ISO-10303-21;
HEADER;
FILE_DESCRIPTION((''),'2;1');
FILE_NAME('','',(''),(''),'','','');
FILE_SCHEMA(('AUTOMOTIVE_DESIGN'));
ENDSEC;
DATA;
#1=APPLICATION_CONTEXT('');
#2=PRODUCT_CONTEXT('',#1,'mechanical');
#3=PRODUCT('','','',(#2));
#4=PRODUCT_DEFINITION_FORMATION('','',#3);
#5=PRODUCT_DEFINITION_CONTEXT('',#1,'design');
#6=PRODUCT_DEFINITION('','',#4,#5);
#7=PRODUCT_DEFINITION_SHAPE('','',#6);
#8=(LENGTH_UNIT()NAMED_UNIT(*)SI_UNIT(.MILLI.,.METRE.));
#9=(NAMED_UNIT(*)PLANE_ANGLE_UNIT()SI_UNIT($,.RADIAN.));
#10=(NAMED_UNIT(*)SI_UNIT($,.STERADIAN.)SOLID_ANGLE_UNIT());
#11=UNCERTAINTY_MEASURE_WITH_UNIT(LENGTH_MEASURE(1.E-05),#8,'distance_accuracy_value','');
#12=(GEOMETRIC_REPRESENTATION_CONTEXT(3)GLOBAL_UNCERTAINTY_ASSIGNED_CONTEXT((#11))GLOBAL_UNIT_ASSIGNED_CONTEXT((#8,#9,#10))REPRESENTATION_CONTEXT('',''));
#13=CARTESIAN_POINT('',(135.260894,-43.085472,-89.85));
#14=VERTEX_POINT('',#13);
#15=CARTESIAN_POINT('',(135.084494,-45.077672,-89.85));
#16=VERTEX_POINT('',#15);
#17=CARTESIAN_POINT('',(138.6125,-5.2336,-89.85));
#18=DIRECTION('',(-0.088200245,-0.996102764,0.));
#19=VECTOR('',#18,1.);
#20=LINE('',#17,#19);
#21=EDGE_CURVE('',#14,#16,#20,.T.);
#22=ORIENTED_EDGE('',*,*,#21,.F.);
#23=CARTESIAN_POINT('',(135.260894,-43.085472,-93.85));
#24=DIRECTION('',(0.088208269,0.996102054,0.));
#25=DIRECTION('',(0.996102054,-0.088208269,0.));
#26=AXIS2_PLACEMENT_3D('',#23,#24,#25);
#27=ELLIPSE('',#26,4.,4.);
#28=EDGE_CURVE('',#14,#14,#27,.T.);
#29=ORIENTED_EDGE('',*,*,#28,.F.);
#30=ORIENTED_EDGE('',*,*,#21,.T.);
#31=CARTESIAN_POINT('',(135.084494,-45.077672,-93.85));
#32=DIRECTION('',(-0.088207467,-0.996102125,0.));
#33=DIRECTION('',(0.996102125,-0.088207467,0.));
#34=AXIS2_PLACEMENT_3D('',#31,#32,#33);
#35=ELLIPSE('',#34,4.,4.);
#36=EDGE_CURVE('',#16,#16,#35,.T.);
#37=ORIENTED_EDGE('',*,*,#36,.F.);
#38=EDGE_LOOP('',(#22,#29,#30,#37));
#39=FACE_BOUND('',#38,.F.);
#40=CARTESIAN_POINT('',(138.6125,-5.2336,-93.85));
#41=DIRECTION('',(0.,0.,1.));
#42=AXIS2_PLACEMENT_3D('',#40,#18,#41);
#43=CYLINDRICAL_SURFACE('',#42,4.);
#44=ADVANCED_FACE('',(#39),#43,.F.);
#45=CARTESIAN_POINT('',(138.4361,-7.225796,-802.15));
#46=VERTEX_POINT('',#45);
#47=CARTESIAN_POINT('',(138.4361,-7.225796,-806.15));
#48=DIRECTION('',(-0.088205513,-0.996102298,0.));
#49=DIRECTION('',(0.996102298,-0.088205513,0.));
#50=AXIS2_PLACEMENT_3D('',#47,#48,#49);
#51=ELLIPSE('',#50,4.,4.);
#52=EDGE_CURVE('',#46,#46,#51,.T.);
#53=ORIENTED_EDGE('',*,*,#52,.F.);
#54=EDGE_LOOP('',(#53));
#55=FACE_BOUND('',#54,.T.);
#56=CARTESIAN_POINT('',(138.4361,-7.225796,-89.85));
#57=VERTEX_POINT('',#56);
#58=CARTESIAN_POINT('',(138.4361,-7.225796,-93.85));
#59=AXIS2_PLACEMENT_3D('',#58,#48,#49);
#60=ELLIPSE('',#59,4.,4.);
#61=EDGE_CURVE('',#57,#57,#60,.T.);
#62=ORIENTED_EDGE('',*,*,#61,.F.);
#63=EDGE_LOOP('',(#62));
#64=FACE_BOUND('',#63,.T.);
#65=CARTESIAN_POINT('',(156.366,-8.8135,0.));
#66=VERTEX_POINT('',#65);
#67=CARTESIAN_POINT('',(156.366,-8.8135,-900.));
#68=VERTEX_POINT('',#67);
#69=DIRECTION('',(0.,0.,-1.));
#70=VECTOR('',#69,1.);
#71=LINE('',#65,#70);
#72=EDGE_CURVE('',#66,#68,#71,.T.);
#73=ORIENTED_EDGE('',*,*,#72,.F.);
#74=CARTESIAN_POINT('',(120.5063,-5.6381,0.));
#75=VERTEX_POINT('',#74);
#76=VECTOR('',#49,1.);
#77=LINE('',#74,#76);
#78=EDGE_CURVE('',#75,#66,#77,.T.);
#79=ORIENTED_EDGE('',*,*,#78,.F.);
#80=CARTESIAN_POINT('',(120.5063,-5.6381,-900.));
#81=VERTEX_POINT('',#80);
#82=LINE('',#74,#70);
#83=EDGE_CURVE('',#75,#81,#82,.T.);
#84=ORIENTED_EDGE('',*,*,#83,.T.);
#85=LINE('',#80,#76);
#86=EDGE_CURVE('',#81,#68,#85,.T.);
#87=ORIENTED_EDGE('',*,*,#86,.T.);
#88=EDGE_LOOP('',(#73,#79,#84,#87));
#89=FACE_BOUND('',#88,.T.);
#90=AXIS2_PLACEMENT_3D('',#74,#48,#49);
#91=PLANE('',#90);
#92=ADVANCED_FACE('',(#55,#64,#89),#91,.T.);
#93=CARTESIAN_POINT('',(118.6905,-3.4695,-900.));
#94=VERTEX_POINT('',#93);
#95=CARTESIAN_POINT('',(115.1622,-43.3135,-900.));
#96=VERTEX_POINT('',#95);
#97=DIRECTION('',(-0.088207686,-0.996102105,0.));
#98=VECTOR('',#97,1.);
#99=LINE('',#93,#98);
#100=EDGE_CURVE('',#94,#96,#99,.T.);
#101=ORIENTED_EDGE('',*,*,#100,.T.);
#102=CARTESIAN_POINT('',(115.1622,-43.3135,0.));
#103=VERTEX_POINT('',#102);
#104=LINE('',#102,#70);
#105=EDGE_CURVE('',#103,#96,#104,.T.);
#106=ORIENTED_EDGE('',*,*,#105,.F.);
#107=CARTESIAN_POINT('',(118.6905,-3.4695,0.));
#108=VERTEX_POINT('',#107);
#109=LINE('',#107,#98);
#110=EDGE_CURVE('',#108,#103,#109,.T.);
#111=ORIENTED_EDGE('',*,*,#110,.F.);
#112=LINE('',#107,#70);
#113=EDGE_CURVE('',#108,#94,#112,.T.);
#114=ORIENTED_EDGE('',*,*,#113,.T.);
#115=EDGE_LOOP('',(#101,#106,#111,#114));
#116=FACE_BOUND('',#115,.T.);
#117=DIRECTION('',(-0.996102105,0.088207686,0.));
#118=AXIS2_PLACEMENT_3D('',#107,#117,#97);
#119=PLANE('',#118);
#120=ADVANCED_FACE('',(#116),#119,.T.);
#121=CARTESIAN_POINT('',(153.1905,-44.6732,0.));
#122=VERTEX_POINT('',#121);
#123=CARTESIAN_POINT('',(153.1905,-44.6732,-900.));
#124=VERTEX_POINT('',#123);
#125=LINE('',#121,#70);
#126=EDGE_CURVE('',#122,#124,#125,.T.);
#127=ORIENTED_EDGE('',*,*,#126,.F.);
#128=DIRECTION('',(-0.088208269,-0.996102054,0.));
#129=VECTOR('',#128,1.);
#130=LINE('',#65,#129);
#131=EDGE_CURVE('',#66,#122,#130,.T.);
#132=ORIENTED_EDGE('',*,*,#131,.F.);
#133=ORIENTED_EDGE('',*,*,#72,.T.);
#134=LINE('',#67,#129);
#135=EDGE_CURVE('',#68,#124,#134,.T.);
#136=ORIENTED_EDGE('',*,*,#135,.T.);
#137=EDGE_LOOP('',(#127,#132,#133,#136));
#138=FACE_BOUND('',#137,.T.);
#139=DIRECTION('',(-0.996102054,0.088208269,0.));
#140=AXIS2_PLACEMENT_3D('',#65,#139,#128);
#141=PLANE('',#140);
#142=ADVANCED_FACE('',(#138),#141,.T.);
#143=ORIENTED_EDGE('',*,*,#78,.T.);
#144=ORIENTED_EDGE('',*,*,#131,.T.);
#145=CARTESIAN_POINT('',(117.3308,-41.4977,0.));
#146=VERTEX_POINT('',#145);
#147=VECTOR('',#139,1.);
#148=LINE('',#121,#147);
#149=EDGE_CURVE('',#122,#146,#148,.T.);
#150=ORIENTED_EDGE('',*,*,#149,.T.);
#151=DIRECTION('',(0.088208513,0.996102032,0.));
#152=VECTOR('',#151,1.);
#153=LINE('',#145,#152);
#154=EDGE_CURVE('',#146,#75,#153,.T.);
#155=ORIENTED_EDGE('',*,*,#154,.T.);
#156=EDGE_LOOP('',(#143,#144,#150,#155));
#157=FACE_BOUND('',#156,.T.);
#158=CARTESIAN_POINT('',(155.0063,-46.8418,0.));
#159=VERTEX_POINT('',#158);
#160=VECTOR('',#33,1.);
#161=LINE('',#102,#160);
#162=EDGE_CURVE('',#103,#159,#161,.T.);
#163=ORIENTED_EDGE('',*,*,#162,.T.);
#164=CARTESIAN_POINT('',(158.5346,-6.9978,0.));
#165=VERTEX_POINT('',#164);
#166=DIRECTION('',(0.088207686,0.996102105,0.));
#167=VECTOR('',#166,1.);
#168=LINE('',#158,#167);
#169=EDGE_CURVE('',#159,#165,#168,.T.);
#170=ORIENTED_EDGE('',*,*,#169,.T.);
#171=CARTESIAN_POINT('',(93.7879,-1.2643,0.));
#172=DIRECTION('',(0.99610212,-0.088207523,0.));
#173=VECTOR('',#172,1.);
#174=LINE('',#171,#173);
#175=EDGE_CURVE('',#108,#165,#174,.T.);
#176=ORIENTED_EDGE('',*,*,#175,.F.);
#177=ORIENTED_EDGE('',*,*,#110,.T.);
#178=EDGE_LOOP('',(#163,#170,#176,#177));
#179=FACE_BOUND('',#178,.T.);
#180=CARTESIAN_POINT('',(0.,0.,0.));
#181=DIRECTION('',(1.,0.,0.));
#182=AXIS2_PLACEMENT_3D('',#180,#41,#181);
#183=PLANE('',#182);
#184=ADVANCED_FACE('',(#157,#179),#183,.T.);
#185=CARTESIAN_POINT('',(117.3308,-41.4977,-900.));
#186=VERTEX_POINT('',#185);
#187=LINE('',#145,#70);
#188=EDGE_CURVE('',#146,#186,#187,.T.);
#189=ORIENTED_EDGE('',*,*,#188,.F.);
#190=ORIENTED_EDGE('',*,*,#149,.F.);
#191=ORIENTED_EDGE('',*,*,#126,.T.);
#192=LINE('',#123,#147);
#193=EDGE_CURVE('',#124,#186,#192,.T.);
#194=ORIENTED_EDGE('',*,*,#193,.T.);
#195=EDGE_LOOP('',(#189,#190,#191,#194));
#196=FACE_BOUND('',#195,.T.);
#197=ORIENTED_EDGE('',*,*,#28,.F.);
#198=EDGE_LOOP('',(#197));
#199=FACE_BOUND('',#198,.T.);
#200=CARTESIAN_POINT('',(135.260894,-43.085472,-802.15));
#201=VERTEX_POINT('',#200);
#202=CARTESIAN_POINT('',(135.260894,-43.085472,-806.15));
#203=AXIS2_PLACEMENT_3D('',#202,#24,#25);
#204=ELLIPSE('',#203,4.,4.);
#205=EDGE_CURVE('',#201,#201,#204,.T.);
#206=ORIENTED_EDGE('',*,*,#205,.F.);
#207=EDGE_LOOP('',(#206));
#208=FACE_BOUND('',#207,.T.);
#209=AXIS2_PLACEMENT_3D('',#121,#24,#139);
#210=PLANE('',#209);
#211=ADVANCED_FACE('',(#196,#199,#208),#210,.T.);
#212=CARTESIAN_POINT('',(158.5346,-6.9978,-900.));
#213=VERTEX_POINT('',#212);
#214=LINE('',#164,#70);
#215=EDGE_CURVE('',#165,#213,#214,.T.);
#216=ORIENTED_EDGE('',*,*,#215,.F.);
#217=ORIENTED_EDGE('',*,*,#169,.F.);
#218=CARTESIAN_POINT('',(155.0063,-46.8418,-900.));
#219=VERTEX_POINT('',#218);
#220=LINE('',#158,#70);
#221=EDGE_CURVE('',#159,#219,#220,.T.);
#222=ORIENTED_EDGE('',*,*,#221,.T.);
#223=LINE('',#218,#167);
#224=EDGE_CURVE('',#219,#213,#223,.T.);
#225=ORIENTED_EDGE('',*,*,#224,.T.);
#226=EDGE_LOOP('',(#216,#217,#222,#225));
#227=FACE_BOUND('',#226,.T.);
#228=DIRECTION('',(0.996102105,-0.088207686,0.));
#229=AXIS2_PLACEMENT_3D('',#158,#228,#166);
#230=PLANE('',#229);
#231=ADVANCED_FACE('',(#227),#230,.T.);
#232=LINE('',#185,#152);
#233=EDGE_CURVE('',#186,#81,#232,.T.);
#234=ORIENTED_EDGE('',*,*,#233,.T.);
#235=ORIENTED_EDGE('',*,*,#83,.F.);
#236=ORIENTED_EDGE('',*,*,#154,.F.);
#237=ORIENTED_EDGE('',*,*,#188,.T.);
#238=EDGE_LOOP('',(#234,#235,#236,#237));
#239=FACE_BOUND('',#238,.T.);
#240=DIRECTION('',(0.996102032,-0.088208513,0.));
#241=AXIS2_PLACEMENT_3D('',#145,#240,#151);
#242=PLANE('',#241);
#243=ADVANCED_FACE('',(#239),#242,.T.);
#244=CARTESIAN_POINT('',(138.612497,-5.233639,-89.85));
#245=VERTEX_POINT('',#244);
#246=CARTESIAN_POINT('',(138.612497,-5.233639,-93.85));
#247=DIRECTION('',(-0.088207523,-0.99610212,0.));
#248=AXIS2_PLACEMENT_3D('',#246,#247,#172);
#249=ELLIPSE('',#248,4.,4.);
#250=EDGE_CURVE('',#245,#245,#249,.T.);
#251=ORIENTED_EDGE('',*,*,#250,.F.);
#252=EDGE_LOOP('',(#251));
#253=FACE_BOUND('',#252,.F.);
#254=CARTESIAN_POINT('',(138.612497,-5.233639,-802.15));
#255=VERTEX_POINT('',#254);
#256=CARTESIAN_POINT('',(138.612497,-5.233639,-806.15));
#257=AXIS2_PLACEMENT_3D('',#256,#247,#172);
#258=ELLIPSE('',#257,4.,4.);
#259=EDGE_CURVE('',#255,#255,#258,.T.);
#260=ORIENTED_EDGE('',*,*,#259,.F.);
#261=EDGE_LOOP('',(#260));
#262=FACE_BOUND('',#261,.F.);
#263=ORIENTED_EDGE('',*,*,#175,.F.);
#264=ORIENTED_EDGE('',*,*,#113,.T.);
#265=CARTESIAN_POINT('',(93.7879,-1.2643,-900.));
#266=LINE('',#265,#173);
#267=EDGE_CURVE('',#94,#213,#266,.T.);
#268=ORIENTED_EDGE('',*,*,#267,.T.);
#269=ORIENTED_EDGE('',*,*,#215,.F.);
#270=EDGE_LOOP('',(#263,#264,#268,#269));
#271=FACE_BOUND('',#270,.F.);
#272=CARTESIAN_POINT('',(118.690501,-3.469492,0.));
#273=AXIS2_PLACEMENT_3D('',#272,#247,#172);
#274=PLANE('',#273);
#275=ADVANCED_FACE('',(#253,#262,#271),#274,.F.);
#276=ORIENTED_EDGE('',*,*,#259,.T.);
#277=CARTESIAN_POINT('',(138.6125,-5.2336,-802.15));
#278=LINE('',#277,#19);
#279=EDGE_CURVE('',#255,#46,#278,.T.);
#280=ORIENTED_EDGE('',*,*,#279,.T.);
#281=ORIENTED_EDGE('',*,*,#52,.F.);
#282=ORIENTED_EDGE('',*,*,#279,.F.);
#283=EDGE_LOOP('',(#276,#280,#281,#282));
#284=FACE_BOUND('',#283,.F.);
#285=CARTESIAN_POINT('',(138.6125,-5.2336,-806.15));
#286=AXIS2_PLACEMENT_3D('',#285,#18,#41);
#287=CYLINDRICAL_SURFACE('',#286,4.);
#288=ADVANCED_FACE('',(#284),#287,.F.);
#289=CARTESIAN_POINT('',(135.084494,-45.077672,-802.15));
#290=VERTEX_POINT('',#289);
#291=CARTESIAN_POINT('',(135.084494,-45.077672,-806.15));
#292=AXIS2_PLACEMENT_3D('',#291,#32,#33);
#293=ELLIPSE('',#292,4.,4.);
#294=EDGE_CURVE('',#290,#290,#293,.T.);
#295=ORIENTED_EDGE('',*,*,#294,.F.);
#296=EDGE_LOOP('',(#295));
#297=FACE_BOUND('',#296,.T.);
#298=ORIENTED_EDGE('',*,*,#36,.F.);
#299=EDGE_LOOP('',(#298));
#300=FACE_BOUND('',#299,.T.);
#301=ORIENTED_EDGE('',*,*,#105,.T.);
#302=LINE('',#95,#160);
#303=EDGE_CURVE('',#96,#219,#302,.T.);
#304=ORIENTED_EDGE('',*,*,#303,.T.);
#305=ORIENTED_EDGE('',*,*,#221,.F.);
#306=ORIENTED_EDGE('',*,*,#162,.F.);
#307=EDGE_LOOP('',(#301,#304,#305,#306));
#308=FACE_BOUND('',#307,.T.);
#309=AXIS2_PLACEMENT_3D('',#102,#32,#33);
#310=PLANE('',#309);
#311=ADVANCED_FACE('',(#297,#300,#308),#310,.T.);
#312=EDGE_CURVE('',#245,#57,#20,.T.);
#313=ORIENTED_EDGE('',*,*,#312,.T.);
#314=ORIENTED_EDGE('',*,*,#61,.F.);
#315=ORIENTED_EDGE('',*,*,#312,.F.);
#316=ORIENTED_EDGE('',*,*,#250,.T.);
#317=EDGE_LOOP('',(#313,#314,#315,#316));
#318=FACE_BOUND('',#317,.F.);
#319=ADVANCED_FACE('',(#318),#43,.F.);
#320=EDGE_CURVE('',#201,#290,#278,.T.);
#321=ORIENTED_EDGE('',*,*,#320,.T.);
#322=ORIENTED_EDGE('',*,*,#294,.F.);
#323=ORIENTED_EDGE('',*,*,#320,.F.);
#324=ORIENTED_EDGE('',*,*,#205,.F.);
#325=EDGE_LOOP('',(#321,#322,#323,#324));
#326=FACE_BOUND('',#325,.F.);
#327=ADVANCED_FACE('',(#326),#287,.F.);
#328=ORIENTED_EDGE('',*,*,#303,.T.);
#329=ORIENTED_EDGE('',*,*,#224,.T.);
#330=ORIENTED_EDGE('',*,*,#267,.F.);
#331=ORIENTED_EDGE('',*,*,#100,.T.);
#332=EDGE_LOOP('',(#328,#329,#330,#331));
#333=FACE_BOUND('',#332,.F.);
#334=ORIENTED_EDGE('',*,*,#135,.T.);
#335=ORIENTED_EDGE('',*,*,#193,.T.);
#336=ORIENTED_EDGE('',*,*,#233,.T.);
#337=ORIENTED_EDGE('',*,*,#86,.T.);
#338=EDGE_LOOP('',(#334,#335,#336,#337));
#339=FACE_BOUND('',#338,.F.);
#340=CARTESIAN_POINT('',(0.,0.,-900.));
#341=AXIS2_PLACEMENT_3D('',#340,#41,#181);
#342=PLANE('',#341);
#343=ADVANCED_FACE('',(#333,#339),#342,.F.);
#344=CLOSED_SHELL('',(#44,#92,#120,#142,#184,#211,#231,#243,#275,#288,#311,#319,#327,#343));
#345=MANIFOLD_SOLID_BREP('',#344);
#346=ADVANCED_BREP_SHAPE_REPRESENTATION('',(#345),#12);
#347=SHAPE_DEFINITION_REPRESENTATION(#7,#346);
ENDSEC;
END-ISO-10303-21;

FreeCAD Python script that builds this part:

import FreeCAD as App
import Part
import Sketcher

V = App.Vector
Q = App.Units.Quantity


def add_polygon(sketch, points):
    """Adds a closed chain of lines whose ends are joined by coincident constraints."""
    first, n = sketch.GeometryCount, len(points)
    for a, b in zip(points, points[1:] + points[:1]):
        sketch.addGeometry(Part.LineSegment(App.Vector(*a, 0), App.Vector(*b, 0)), False)
    for i in range(n):
        sketch.addConstraint(Sketcher.Constraint("Coincident", first + i, 2, first + (i + 1) % n, 1))

doc = App.newDocument("Part")
body = doc.addObject("PartDesign::Body", "Body")

sketch1 = body.newObject("Sketcher::SketchObject", "Sketch")
sketch1.AttachmentSupport = (doc.getObject("XY_Plane"), [""])
sketch1.MapMode = "FlatFace"
add_polygon(sketch1, [(159, -7), (119, -3), (115, -43), (155, -47)])
add_polygon(sketch1, [(121, -6), (156, -9), (153, -45), (117, -41)])
sketch1.addConstraint(Sketcher.Constraint("Perpendicular", 0, 1))
sketch1.addConstraint(Sketcher.Constraint("Perpendicular", 1, 2))
sketch1.addConstraint(Sketcher.Constraint("Perpendicular", 2, 3))
sketch1.addConstraint(Sketcher.Constraint("Perpendicular", 3, 4))
sketch1.addConstraint(Sketcher.Constraint("Perpendicular", 4, 5))
sketch1.addConstraint(Sketcher.Constraint("Perpendicular", 5, 6))
sketch1.addConstraint(Sketcher.Constraint("Perpendicular", 6, 7))
sketch1.addConstraint(Sketcher.Constraint("Equal", 0, 1))
sketch1.addConstraint(Sketcher.Constraint("Equal", 4, 5))
sketch1.addConstraint(Sketcher.Constraint("Distance", 0, Q("40 mm")))
sketch1.addConstraint(Sketcher.Constraint("Distance", 4, Q("36 mm")))
sketch1.addConstraint(Sketcher.Constraint("Angle", 0, Q("174.9395 deg")))
sketch1.addConstraint(Sketcher.Constraint("DistanceY", 1, 2, 4, 2, Q("34.5 mm")))
sketch1.addConstraint(Sketcher.Constraint("DistanceX", 0, 2, 5, 2, Q("34.5 mm")))
sketch1.addConstraint(Sketcher.Constraint("DistanceX", -1, 1, 4, 2, Q("156.366 mm")))
sketch1.addConstraint(Sketcher.Constraint("DistanceY", 7, 2, -1, 1, Q("5.638 mm")))
pad1 = body.newObject("PartDesign::Pad", "Pad")
pad1.Profile = sketch1
pad1.Length = 900
pad1.Reversed = True

sketch2 = body.newObject("Sketcher::SketchObject", "Sketch001")
sketch2.Placement = App.Placement(V(0.6185, 6.985124, 0), App.Rotation(V(-0.996102764, 0.088200245, 0), V(0, 0, 1), V(0.088200245, 0.996102764, 0), "ZXY"))
sketch2.addGeometry(Part.Circle(V(-138.5, -93.8, 0), V(0, 0, 1), 4), False)
sketch2.addGeometry(Part.Circle(V(-138.5, -806.1, 0), V(0, 0, 1), 4), False)
sketch2.addConstraint(Sketcher.Constraint("Equal", 0, 1))
sketch2.addConstraint(Sketcher.Constraint("Vertical", 0, 3, 1, 3))
sketch2.addConstraint(Sketcher.Constraint("Diameter", 0, Q("8 mm")))
sketch2.addConstraint(Sketcher.Constraint("DistanceY", 1, 3, 0, 3, Q("712.3 mm")))
sketch2.addConstraint(Sketcher.Constraint("DistanceY", 0, 3, -1, 1, Q("93.85 mm")))
sketch2.addConstraint(Sketcher.Constraint("DistanceX", 0, 3, -1, 1, Q("138.534 mm")))
doc.recompute()
hole = body.newObject("PartDesign::Hole", "Hole")
hole.Profile = sketch2
hole.ThreadType = "None"
hole.Diameter = 8
hole.DepthType = "ThroughAll"

doc.recompute()
